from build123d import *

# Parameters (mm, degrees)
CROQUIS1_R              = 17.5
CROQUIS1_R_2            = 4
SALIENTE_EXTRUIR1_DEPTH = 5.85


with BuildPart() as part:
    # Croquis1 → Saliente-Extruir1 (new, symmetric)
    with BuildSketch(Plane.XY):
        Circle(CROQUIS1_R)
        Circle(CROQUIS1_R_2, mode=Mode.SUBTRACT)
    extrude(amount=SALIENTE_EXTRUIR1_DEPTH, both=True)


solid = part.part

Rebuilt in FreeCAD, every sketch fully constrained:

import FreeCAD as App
import Part
import Sketcher
from FreeCAD import Vector

doc = App.newDocument("Part")
body = doc.addObject("PartDesign::Body", "Body")

# Sketch on XY plane
sketch1 = body.newObject("Sketcher::SketchObject", "Sketch")
sketch1.AttachmentSupport = (doc.getObject("XY_Plane"), [""])
sketch1.MapMode = "FlatFace"
sketch1.addGeometry(Part.Circle(Vector(0, 0, 0), Vector(0, 0, 1), 17.5), False)
sketch1.addGeometry(Part.Circle(Vector(0, 0, 0), Vector(0, 0, 1), 4), False)
sketch1.addConstraint(Sketcher.Constraint("Coincident", 0, 3, -1, 1))
sketch1.addConstraint(Sketcher.Constraint("Coincident", 1, 3, -1, 1))
sketch1.addConstraint(Sketcher.Constraint("Diameter", 0, 35.0))
sketch1.addConstraint(Sketcher.Constraint("Diameter", 1, 8.0))
pad1 = body.newObject("PartDesign::Pad", "Pad")
pad1.Profile = sketch1
pad1.Length = 11.7
pad1.Midplane = True

doc.recompute()
